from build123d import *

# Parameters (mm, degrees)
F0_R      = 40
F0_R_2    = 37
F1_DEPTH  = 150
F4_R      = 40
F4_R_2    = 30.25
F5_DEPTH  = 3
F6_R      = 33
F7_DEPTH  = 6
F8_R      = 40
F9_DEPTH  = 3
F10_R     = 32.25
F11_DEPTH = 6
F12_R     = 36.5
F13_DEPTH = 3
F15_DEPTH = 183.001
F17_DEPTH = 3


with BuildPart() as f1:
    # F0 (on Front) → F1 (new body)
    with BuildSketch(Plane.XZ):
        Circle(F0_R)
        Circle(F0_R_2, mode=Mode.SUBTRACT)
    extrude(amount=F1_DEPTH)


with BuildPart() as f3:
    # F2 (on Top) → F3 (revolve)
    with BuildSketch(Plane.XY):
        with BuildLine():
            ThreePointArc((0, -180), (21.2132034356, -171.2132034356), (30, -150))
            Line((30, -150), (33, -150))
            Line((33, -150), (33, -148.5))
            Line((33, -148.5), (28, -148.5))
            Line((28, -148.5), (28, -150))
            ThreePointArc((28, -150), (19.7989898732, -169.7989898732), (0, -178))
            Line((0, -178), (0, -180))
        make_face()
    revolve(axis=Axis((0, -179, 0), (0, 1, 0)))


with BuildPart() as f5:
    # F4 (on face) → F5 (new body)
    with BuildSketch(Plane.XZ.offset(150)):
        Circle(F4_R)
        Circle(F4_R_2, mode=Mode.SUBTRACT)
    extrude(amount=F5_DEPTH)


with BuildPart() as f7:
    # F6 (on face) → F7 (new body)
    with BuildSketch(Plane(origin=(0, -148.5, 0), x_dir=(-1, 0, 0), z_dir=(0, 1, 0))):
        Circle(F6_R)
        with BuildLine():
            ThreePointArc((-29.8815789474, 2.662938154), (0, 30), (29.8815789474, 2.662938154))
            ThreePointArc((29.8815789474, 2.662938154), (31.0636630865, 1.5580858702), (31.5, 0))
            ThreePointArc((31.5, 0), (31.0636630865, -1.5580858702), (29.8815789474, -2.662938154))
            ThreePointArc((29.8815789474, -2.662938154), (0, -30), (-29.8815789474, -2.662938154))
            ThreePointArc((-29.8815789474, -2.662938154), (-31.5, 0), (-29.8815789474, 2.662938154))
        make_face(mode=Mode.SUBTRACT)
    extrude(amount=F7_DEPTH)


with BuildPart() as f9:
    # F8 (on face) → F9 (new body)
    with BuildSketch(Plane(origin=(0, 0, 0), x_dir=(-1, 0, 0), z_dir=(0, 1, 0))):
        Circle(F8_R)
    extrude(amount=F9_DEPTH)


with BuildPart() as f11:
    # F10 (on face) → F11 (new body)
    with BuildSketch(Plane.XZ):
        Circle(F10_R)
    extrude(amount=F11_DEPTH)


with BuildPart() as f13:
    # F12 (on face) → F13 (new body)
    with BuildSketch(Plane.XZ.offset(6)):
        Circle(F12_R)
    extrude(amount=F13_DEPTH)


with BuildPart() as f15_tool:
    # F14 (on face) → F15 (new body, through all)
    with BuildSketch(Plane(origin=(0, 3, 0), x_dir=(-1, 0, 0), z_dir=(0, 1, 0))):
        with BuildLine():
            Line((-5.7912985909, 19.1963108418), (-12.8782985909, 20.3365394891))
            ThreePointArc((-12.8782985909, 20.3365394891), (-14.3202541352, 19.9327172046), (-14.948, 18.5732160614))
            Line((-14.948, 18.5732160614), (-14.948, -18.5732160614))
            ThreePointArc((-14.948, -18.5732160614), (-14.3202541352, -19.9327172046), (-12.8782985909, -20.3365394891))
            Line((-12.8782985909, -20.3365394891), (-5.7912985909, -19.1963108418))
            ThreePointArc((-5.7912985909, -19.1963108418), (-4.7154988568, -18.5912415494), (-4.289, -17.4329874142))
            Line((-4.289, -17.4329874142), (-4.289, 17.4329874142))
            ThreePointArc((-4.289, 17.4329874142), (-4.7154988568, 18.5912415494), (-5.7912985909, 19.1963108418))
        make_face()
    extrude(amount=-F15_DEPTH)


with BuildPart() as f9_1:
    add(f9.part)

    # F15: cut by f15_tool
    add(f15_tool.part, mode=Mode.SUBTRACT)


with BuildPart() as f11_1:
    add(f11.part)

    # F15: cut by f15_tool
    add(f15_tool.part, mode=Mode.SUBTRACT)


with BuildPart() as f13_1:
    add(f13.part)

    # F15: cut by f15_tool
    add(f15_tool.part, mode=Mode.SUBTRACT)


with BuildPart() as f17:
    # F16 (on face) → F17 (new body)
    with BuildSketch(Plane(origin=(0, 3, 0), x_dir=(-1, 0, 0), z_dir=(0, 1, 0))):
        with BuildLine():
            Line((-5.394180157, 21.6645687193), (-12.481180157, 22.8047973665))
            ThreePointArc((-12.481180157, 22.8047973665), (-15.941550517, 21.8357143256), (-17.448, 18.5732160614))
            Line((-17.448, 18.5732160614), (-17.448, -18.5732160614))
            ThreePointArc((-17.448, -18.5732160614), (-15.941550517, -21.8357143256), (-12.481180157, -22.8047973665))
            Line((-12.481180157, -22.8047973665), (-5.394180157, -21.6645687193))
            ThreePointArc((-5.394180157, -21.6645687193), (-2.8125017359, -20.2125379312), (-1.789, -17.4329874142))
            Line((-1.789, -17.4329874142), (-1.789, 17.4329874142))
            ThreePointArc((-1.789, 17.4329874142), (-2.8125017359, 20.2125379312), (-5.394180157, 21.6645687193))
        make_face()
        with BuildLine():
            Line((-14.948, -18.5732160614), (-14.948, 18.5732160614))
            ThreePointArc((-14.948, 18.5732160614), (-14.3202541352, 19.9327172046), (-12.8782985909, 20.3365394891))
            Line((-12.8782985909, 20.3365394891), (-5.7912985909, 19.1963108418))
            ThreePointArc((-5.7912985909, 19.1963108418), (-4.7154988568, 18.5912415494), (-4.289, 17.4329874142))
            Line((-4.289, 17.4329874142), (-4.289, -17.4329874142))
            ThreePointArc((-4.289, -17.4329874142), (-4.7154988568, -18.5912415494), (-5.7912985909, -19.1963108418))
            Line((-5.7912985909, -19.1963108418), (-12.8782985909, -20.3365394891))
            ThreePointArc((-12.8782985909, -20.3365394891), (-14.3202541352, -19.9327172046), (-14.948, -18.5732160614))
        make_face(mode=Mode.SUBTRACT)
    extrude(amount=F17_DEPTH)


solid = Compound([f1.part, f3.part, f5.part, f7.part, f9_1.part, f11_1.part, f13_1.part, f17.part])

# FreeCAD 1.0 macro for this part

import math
import FreeCAD as App
import Part
import Sketcher
Q = App.Units.Quantity

doc = App.newDocument("Part")
body = doc.addObject("PartDesign::Body", "Body")

sketch1 = body.newObject("Sketcher::SketchObject", "Sketch")
sketch1.AttachmentSupport = (doc.getObject("XZ_Plane"), [""])
sketch1.MapMode = "FlatFace"
sketch1.addGeometry([
    Part.Circle(App.Vector(0, 0, 0), App.Vector(0, 0, 1), 40),
    Part.Circle(App.Vector(0, 0, 0), App.Vector(0, 0, 1), 37),
], False)
sketch1.addConstraint([
    Sketcher.Constraint("Coincident", 0, 3, -1, 1),
    Sketcher.Constraint("Coincident", 1, 3, -1, 1),
    Sketcher.Constraint("Diameter", 0, 80.0),
    Sketcher.Constraint("Diameter", 1, 74.0),
])
pad1 = body.newObject("PartDesign::Pad", "Pad")
pad1.Profile = sketch1
pad1.Length = 150
body2 = doc.addObject("PartDesign::Body", "Body001")

sketch2 = body2.newObject("Sketcher::SketchObject", "Sketch001")
sketch2.AttachmentSupport = (doc.getObject("XY_Plane001"), [""])
sketch2.MapMode = "FlatFace"
sketch2.addGeometry([
    Part.ArcOfCircle(Part.Circle(App.Vector(0, -150, 0), App.Vector(0, 0, 1), 30), math.radians(-90), math.radians(0)),
    Part.LineSegment(App.Vector(30, -150, 0), App.Vector(33, -150, 0)),
    Part.LineSegment(App.Vector(33, -150, 0), App.Vector(33, -148.5, 0)),
    Part.LineSegment(App.Vector(33, -148.5, 0), App.Vector(28, -148.5, 0)),
    Part.LineSegment(App.Vector(28, -148.5, 0), App.Vector(28, -150, 0)),
    Part.ArcOfCircle(Part.Circle(App.Vector(0, -150, 0), App.Vector(0, 0, 1), 28), math.radians(-90), math.radians(0)),
    Part.LineSegment(App.Vector(0, -178, 0), App.Vector(0, -180, 0)),
], False)
sketch2.addConstraint([
    Sketcher.Constraint("Coincident", 0, 2, 1, 1),
    Sketcher.Constraint("Coincident", 1, 2, 2, 1),
    Sketcher.Constraint("Coincident", 2, 2, 3, 1),
    Sketcher.Constraint("Coincident", 3, 2, 4, 1),
    Sketcher.Constraint("Tangent", 4, 2, 5, 2),
    Sketcher.Constraint("Coincident", 5, 1, 6, 1),
    Sketcher.Constraint("Coincident", 6, 2, 0, 1),
    Sketcher.Constraint("Horizontal", 1),
    Sketcher.Constraint("Vertical", 2),
    Sketcher.Constraint("Horizontal", 3),
    Sketcher.Constraint("Vertical", 4),
    Sketcher.Constraint("Vertical", 6),
    Sketcher.Constraint("Coincident", 5, 3, 0, 3),
    Sketcher.Constraint("PointOnObject", 0, 3, -2),
    Sketcher.Constraint("PointOnObject", 5, 1, -2),
    Sketcher.Constraint("Horizontal", 5, 3, 0, 2),
    Sketcher.Constraint("Radius", 0, 30.0),
    Sketcher.Constraint("Radius", 5, 28.0),
    Sketcher.Constraint("DistanceX", 1, 1, 1, 2, 3.0),
    Sketcher.Constraint("DistanceY", 2, 1, 2, 2, 1.5),
    Sketcher.Constraint("DistanceY", 0, 3, -1, 1, 150.0),
])
revolution = body2.newObject("PartDesign::Revolution", "Revolution")
revolution.Profile = sketch2
revolution.ReferenceAxis = (sketch2, ["V_Axis"])
revolution.Angle = 360
body3 = doc.addObject("PartDesign::Body", "Body002")

sketch3 = body3.newObject("Sketcher::SketchObject", "Sketch002")
sketch3.AttachmentSupport = (doc.getObject("XZ_Plane002"), [""])
sketch3.MapMode = "FlatFace"
sketch3.AttachmentOffset = App.Placement(App.Vector(0, 0, 150), App.Rotation())
sketch3.addGeometry([
    Part.Circle(App.Vector(0, 0, 0), App.Vector(0, 0, 1), 40),
    Part.Circle(App.Vector(0, 0, 0), App.Vector(0, 0, 1), 30),
], False)
sketch3.addConstraint([
    Sketcher.Constraint("Coincident", 0, 3, -1, 1),
    Sketcher.Constraint("Coincident", 1, 3, -1, 1),
    Sketcher.Constraint("Diameter", 0, 80.0),
    Sketcher.Constraint("Diameter", 1, 60.5),
])
pad2 = body3.newObject("PartDesign::Pad", "Pad001")
pad2.Profile = sketch3
pad2.Length = 3
body4 = doc.addObject("PartDesign::Body", "Body003")

sketch4 = body4.newObject("Sketcher::SketchObject", "Sketch003")
sketch4.AttachmentSupport = (doc.getObject("XZ_Plane003"), [""])
sketch4.MapMode = "FlatFace"
sketch4.AttachmentOffset = App.Placement(App.Vector(0, 0, 148.5), App.Rotation())
sketch4.addGeometry([
    Part.Circle(App.Vector(0, 0, 0), App.Vector(0, 0, 1), 33),
    Part.ArcOfCircle(Part.Circle(App.Vector(28.5, 0, 0), App.Vector(0, 0, 1), 3), math.radians(-63), math.radians(63)),
    Part.ArcOfCircle(Part.Circle(App.Vector(0, 0, 0), App.Vector(0, 0, 1), 30), math.radians(5), math.radians(175)),
    Part.ArcOfCircle(Part.Circle(App.Vector(-28.5, 0, 0), App.Vector(0, 0, 1), 3), math.radians(117), math.radians(180)),
    Part.ArcOfCircle(Part.Circle(App.Vector(-28.5, 0, 0), App.Vector(0, 0, 1), 3), math.radians(180), math.radians(243)),
    Part.ArcOfCircle(Part.Circle(App.Vector(0, 0, 0), App.Vector(0, 0, 1), 30), math.radians(-175), math.radians(-5)),
], False)
sketch4.addConstraint([
    Sketcher.Constraint("Coincident", 1, 2, 2, 1),
    Sketcher.Constraint("Coincident", 2, 2, 3, 1),
    Sketcher.Constraint("Tangent", 3, 2, 4, 1),
    Sketcher.Constraint("Coincident", 4, 2, 5, 1),
    Sketcher.Constraint("Coincident", 5, 2, 1, 1),
    Sketcher.Constraint("Coincident", 0, 3, -1, 1),
    Sketcher.Constraint("Coincident", 2, 3, -1, 1),
    Sketcher.Constraint("Coincident", 5, 3, -1, 1),
    Sketcher.Constraint("Equal", 1, 3),
    Sketcher.Constraint("Equal", 3, 4),
    Sketcher.Constraint("Equal", 2, 5),
    Sketcher.Constraint("Symmetric", 1, 3, 3, 3, -1, 1),
    Sketcher.Constraint("PointOnObject", 1, 3, -1),
    Sketcher.Constraint("PointOnObject", 3, 2, -1),
    Sketcher.Constraint("Diameter", 0, 66.0),
    Sketcher.Constraint("Radius", 1, 3.0),
    Sketcher.Constraint("Radius", 2, 30.0),
    Sketcher.Constraint("DistanceX", 3, 3, 1, 3, 57.0),
])
pad3 = body4.newObject("PartDesign::Pad", "Pad002")
pad3.Profile = sketch4
pad3.Length = 6
pad3.Reversed = True
body5 = doc.addObject("PartDesign::Body", "Body004")

sketch5 = body5.newObject("Sketcher::SketchObject", "Sketch004")
sketch5.AttachmentSupport = (doc.getObject("XZ_Plane004"), [""])
sketch5.MapMode = "FlatFace"
sketch5.addGeometry(Part.Circle(App.Vector(0, 0, 0), App.Vector(0, 0, 1), 40), False)
sketch5.addConstraint([
    Sketcher.Constraint("Coincident", 0, 3, -1, 1),
    Sketcher.Constraint("Diameter", 0, 80.0),
])
pad4 = body5.newObject("PartDesign::Pad", "Pad003")
pad4.Profile = sketch5
pad4.Length = 3
pad4.Reversed = True
body6 = doc.addObject("PartDesign::Body", "Body005")

sketch6 = body6.newObject("Sketcher::SketchObject", "Sketch005")
sketch6.AttachmentSupport = (doc.getObject("XZ_Plane005"), [""])
sketch6.MapMode = "FlatFace"
sketch6.addGeometry(Part.Circle(App.Vector(0, 0, 0), App.Vector(0, 0, 1), 32), False)
sketch6.addConstraint([
    Sketcher.Constraint("Coincident", 0, 3, -1, 1),
    Sketcher.Constraint("Diameter", 0, 64.5),
])
pad5 = body6.newObject("PartDesign::Pad", "Pad004")
pad5.Profile = sketch6
pad5.Length = 6
body7 = doc.addObject("PartDesign::Body", "Body006")

sketch7 = body7.newObject("Sketcher::SketchObject", "Sketch006")
sketch7.AttachmentSupport = (doc.getObject("XZ_Plane006"), [""])
sketch7.MapMode = "FlatFace"
sketch7.AttachmentOffset = App.Placement(App.Vector(0, 0, 6), App.Rotation())
sketch7.addGeometry(Part.Circle(App.Vector(0, 0, 0), App.Vector(0, 0, 1), 36), False)
sketch7.addConstraint([
    Sketcher.Constraint("Coincident", 0, 3, -1, 1),
    Sketcher.Constraint("Diameter", 0, 73.0),
])
pad6 = body7.newObject("PartDesign::Pad", "Pad005")
pad6.Profile = sketch7
pad6.Length = 3
body8 = doc.addObject("PartDesign::Body", "Body007")

sketch8 = body8.newObject("Sketcher::SketchObject", "Sketch007")
sketch8.AttachmentSupport = (doc.getObject("XZ_Plane007"), [""])
sketch8.MapMode = "FlatFace"
sketch8.AttachmentOffset = App.Placement(App.Vector(0, 0, -3), App.Rotation())
sketch8.addGeometry([
    Part.LineSegment(App.Vector(5.8, 19.2, 0), App.Vector(12.9, 20.3, 0)),
    Part.ArcOfCircle(Part.Circle(App.Vector(13.2, 18.6, 0), App.Vector(0, 0, 1), 1.8), math.radians(0), math.radians(99)),
    Part.LineSegment(App.Vector(14.9, 18.6, 0), App.Vector(14.9, -18.6, 0)),
    Part.ArcOfCircle(Part.Circle(App.Vector(13.2, -18.6, 0), App.Vector(0, 0, 1), 1.8), math.radians(-99), math.radians(0)),
    Part.LineSegment(App.Vector(12.9, -20.3, 0), App.Vector(5.8, -19.2, 0)),
    Part.ArcOfCircle(Part.Circle(App.Vector(6.1, -17.4, 0), App.Vector(0, 0, 1), 1.8), math.radians(180), math.radians(261)),
    Part.LineSegment(App.Vector(4.3, -17.4, 0), App.Vector(4.3, 17.4, 0)),
    Part.ArcOfCircle(Part.Circle(App.Vector(6.1, 17.4, 0), App.Vector(0, 0, 1), 1.8), math.radians(99), math.radians(180)),
], False)
sketch8.addConstraint([
    Sketcher.Constraint("Tangent", 0, 2, 1, 2),
    Sketcher.Constraint("Tangent", 1, 1, 2, 1),
    Sketcher.Constraint("Tangent", 2, 2, 3, 2),
    Sketcher.Constraint("Tangent", 3, 1, 4, 1),
    Sketcher.Constraint("Tangent", 4, 2, 5, 2),
    Sketcher.Constraint("Tangent", 5, 1, 6, 1),
    Sketcher.Constraint("Tangent", 6, 2, 7, 2),
    Sketcher.Constraint("Tangent", 7, 1, 0, 1),
    Sketcher.Constraint("Vertical", 2),
    Sketcher.Constraint("Vertical", 6),
    Sketcher.Constraint("Equal", 1, 3),
    Sketcher.Constraint("Equal", 3, 5),
    Sketcher.Constraint("Equal", 5, 7),
    Sketcher.Constraint("Symmetric", 0, 2, 3, 1, -1),
    Sketcher.Constraint("Radius", 1, 1.786),
    Sketcher.Constraint("Angle", 0, Q("9.14 deg")),
    Sketcher.Constraint("DistanceX", -1, 1, 1, 3, 13.162),
    Sketcher.Constraint("DistanceX", -1, 1, 5, 3, 6.075),
    Sketcher.Constraint("DistanceY", 4, 2, 7, 3, 36.629298),
])
pad7 = body8.newObject("PartDesign::Pad", "Pad006")
pad7.Profile = sketch8
pad7.Length = 183.001
doc.recompute()

body9 = doc.addObject("PartDesign::Body", "Body008")
body9.BaseFeature = body8
boolean = body5.newObject("PartDesign::Boolean", "Boolean")
boolean.Type = "Cut"
boolean.addObjects([body9])
doc.recompute()

body10 = doc.addObject("PartDesign::Body", "Body009")
body10.BaseFeature = body8
boolean2 = body6.newObject("PartDesign::Boolean", "Boolean001")
boolean2.Type = "Cut"
boolean2.addObjects([body10])
doc.recompute()

boolean3 = body7.newObject("PartDesign::Boolean", "Boolean002")
boolean3.Type = "Cut"
boolean3.addObjects([body8])
body11 = doc.addObject("PartDesign::Body", "Body010")

sketch9 = body11.newObject("Sketcher::SketchObject", "Sketch008")
sketch9.AttachmentSupport = (doc.getObject("XZ_Plane010"), [""])
sketch9.MapMode = "FlatFace"
sketch9.AttachmentOffset = App.Placement(App.Vector(0, 0, -3), App.Rotation())
sketch9.addGeometry([
    Part.LineSegment(App.Vector(5.4, 21.7, 0), App.Vector(12.5, 22.8, 0)),
    Part.ArcOfCircle(Part.Circle(App.Vector(13.2, 18.6, 0), App.Vector(0, 0, 1), 4.3), math.radians(0), math.radians(99)),
    Part.LineSegment(App.Vector(17.4, 18.6, 0), App.Vector(17.4, -18.6, 0)),
    Part.ArcOfCircle(Part.Circle(App.Vector(13.2, -18.6, 0), App.Vector(0, 0, 1), 4.3), math.radians(-99), math.radians(0)),
    Part.LineSegment(App.Vector(12.5, -22.8, 0), App.Vector(5.4, -21.7, 0)),
    Part.ArcOfCircle(Part.Circle(App.Vector(6.1, -17.4, 0), App.Vector(0, 0, 1), 4.3), math.radians(180), math.radians(261)),
    Part.LineSegment(App.Vector(1.8, -17.4, 0), App.Vector(1.8, 17.4, 0)),
    Part.ArcOfCircle(Part.Circle(App.Vector(6.1, 17.4, 0), App.Vector(0, 0, 1), 4.3), math.radians(99), math.radians(180)),
    Part.ArcOfCircle(Part.Circle(App.Vector(13.2, -18.6, 0), App.Vector(0, 0, 1), 1.8), math.radians(-99), math.radians(0)),
    Part.LineSegment(App.Vector(14.9, -18.6, 0), App.Vector(14.9, 18.6, 0)),
    Part.ArcOfCircle(Part.Circle(App.Vector(13.2, 18.6, 0), App.Vector(0, 0, 1), 1.8), math.radians(0), math.radians(99)),
    Part.LineSegment(App.Vector(12.9, 20.3, 0), App.Vector(5.8, 19.2, 0)),
    Part.ArcOfCircle(Part.Circle(App.Vector(6.1, 17.4, 0), App.Vector(0, 0, 1), 1.8), math.radians(99), math.radians(180)),
    Part.LineSegment(App.Vector(4.3, 17.4, 0), App.Vector(4.3, -17.4, 0)),
    Part.ArcOfCircle(Part.Circle(App.Vector(6.1, -17.4, 0), App.Vector(0, 0, 1), 1.8), math.radians(180), math.radians(261)),
    Part.LineSegment(App.Vector(5.8, -19.2, 0), App.Vector(12.9, -20.3, 0)),
], False)
sketch9.addConstraint([
    Sketcher.Constraint("Tangent", 0, 2, 1, 2),
    Sketcher.Constraint("Tangent", 1, 1, 2, 1),
    Sketcher.Constraint("Tangent", 2, 2, 3, 2),
    Sketcher.Constraint("Tangent", 3, 1, 4, 1),
    Sketcher.Constraint("Tangent", 4, 2, 5, 2),
    Sketcher.Constraint("Tangent", 5, 1, 6, 1),
    Sketcher.Constraint("Tangent", 6, 2, 7, 2),
    Sketcher.Constraint("Tangent", 7, 1, 0, 1),
    Sketcher.Constraint("Tangent", 8, 2, 9, 1),
    Sketcher.Constraint("Tangent", 9, 2, 10, 1),
    Sketcher.Constraint("Tangent", 10, 2, 11, 1),
    Sketcher.Constraint("Tangent", 11, 2, 12, 1),
    Sketcher.Constraint("Tangent", 12, 2, 13, 1),
    Sketcher.Constraint("Tangent", 13, 2, 14, 1),
    Sketcher.Constraint("Tangent", 14, 2, 15, 1),
    Sketcher.Constraint("Tangent", 15, 2, 8, 1),
    Sketcher.Constraint("Vertical", 2),
    Sketcher.Constraint("Vertical", 6),
    Sketcher.Constraint("Vertical", 9),
    Sketcher.Constraint("Vertical", 13),
    Sketcher.Constraint("Coincident", 8, 3, 3, 3),
    Sketcher.Constraint("Coincident", 10, 3, 1, 3),
    Sketcher.Constraint("Coincident", 12, 3, 7, 3),
    Sketcher.Constraint("Coincident", 14, 3, 5, 3),
    Sketcher.Constraint("Equal", 1, 3),
    Sketcher.Constraint("Equal", 3, 5),
    Sketcher.Constraint("Equal", 5, 7),
    Sketcher.Constraint("Equal", 10, 12),
    Sketcher.Constraint("Symmetric", 0, 2, 3, 1, -1),
    Sketcher.Constraint("Radius", 1, 4.286),
    Sketcher.Constraint("Radius", 8, 1.786),
    Sketcher.Constraint("Angle", 0, Q("9.14 deg")),
    Sketcher.Constraint("DistanceX", -1, 1, 1, 3, 13.162),
    Sketcher.Constraint("DistanceX", -1, 1, 5, 3, 6.075),
    Sketcher.Constraint("DistanceY", 2, 2, 2, 1, 37.146432),
])
pad8 = body11.newObject("PartDesign::Pad", "Pad007")
pad8.Profile = sketch9
pad8.Length = 3
pad8.Reversed = True

doc.recompute()
